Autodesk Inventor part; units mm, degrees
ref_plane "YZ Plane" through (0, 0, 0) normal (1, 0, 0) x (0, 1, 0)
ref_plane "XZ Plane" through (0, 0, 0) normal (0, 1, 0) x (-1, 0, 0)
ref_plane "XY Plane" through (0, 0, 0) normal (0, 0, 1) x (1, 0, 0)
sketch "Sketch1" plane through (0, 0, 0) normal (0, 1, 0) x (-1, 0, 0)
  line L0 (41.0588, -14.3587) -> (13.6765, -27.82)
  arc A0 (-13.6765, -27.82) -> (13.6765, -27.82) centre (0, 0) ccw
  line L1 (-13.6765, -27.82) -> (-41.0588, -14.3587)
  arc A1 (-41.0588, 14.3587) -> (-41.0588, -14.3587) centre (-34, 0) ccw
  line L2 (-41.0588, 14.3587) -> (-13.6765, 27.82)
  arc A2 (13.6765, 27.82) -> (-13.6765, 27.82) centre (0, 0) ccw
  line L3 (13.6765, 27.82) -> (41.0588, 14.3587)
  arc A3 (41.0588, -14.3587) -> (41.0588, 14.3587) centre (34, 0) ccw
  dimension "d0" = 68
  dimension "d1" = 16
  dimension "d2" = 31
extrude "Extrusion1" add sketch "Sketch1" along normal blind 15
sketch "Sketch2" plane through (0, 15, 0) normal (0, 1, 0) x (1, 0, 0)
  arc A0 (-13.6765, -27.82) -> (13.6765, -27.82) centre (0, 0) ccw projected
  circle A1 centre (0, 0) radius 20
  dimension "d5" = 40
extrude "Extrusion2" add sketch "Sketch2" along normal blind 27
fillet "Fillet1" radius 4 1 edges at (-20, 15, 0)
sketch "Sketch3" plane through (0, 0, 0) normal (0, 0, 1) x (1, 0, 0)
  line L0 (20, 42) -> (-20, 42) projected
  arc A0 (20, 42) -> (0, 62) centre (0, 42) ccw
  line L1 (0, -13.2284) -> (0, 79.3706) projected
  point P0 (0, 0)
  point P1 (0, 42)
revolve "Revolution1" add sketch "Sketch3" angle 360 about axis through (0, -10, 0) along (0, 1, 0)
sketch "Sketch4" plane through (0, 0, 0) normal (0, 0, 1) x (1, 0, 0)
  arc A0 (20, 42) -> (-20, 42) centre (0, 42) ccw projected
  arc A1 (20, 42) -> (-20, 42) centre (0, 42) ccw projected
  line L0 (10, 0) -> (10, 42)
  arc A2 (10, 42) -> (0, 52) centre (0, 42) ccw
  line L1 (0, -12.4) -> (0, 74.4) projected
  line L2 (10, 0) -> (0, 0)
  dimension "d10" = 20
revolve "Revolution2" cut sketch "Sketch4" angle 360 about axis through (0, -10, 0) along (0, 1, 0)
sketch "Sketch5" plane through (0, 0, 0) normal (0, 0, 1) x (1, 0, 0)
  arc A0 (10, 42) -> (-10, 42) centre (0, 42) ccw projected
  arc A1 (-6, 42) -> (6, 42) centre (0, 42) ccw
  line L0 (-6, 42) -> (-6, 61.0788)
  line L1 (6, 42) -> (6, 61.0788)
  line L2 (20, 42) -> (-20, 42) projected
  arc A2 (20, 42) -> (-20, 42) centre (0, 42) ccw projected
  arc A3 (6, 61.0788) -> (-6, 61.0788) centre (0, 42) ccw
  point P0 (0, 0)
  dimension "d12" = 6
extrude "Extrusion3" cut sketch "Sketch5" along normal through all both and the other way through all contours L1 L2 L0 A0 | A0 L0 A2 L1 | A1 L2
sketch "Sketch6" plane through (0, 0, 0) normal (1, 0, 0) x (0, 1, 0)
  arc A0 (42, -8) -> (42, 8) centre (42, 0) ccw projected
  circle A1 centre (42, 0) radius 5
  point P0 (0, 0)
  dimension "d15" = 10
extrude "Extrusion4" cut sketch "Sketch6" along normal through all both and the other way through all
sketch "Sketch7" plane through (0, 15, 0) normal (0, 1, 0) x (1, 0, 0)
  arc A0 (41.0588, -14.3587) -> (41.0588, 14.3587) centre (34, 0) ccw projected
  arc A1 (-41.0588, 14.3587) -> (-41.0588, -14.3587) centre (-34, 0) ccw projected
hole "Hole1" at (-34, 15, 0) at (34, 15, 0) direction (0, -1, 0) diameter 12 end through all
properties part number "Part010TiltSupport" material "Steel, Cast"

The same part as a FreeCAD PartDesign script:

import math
import FreeCAD as App
import Part
import Sketcher
from FreeCAD import Vector
Q = App.Units.Quantity


def edges_at(feature, points):
    """Names of the edges that pass closest to the given points."""
    edges = feature.Shape.Edges
    near = lambda p: min(range(len(edges)), key=lambda i: edges[i].distToShape(Part.Vertex(*p))[0])
    return sorted({f"Edge{near(p) + 1}" for p in points})

doc = App.newDocument("Part")
body = doc.addObject("PartDesign::Body", "Body")

sketch1 = body.newObject("Sketcher::SketchObject", "Sketch")
sketch1.AttachmentSupport = (doc.getObject("XZ_Plane"), [""])
sketch1.MapMode = "FlatFace"
sketch1.addGeometry([
    Part.LineSegment(Vector(-14, -28, 0), Vector(-41, -14, 0)),
    Part.ArcOfCircle(Part.Circle(Vector(-34, 0, 0), Vector(0, 0, 1), 16), math.radians(116), math.radians(244)),
    Part.LineSegment(Vector(-41, 14, 0), Vector(-14, 28, 0)),
    Part.ArcOfCircle(Part.Circle(Vector(0, 0, 0), Vector(0, 0, 1), 31), math.radians(64), math.radians(116)),
    Part.LineSegment(Vector(14, 28, 0), Vector(41, 14, 0)),
    Part.ArcOfCircle(Part.Circle(Vector(34, 0, 0), Vector(0, 0, 1), 16), math.radians(-64), math.radians(64)),
    Part.LineSegment(Vector(41, -14, 0), Vector(14, -28, 0)),
    Part.ArcOfCircle(Part.Circle(Vector(0, 0, 0), Vector(0, 0, 1), 31), math.radians(-116), math.radians(-64)),
], False)
sketch1.addConstraint([
    Sketcher.Constraint("Tangent", 0, 2, 1, 2),
    Sketcher.Constraint("Tangent", 1, 1, 2, 1),
    Sketcher.Constraint("Tangent", 2, 2, 3, 2),
    Sketcher.Constraint("Tangent", 3, 1, 4, 1),
    Sketcher.Constraint("Tangent", 4, 2, 5, 2),
    Sketcher.Constraint("Tangent", 5, 1, 6, 1),
    Sketcher.Constraint("Tangent", 6, 2, 7, 2),
    Sketcher.Constraint("Tangent", 7, 1, 0, 1),
    Sketcher.Constraint("Coincident", 3, 3, -1, 1),
    Sketcher.Constraint("Coincident", 7, 3, -1, 1),
    Sketcher.Constraint("Equal", 1, 5),
    Sketcher.Constraint("Equal", 3, 7),
    Sketcher.Constraint("Symmetric", 1, 3, 5, 3, -1, 1),
    Sketcher.Constraint("PointOnObject", 1, 3, -1),
    Sketcher.Constraint("Radius", 1, Q("16 mm")),
    Sketcher.Constraint("Radius", 3, Q("31 mm")),
    Sketcher.Constraint("DistanceX", 1, 3, 5, 3, Q("68 mm")),
])
pad1 = body.newObject("PartDesign::Pad", "Pad")
pad1.Profile = sketch1
pad1.Length = 15
pad1.Reversed = True

sketch2 = body.newObject("Sketcher::SketchObject", "Sketch001")
sketch2.AttachmentSupport = (doc.getObject("XZ_Plane"), [""])
sketch2.MapMode = "FlatFace"
sketch2.AttachmentOffset = App.Placement(Vector(0, 0, -15), App.Rotation())
sketch2.addGeometry(Part.Circle(Vector(0, 0, 0), Vector(0, 0, 1), 20), False)
sketch2.addConstraint([
    Sketcher.Constraint("Coincident", 0, 3, -1, 1),
    Sketcher.Constraint("Diameter", 0, Q("40 mm")),
])
pad2 = body.newObject("PartDesign::Pad", "Pad001")
pad2.Profile = sketch2
pad2.Length = 27
pad2.Reversed = True
doc.recompute()

fillet = body.newObject("PartDesign::Fillet", "Fillet")
fillet.Base = (pad2, edges_at(pad2, [(-20, 15, 0)]))
fillet.Radius = 4

sketch3 = body.newObject("Sketcher::SketchObject", "Sketch002")
sketch3.AttachmentSupport = (doc.getObject("XY_Plane"), [""])
sketch3.MapMode = "FlatFace"
sketch3.addGeometry([
    Part.LineSegment(Vector(0, 42, 0), Vector(20, 42, 0)),
    Part.ArcOfCircle(Part.Circle(Vector(0, 42, 0), Vector(0, 0, 1), 20), math.radians(0), math.radians(90)),
    Part.LineSegment(Vector(0, 62, 0), Vector(0, 42, 0)),
], False)
sketch3.addConstraint([
    Sketcher.Constraint("Coincident", 0, 2, 1, 1),
    Sketcher.Constraint("Coincident", 1, 2, 2, 1),
    Sketcher.Constraint("Coincident", 2, 2, 0, 1),
    Sketcher.Constraint("Horizontal", 0),
    Sketcher.Constraint("Vertical", 2),
    Sketcher.Constraint("Coincident", 2, 2, 1, 3),
    Sketcher.Constraint("PointOnObject", 1, 3, -2),
    Sketcher.Constraint("Radius", 1, Q("20 mm")),
    Sketcher.Constraint("DistanceY", -1, 1, 1, 3, Q("42 mm")),
])
revolution = body.newObject("PartDesign::Revolution", "Revolution")
revolution.Profile = sketch3
revolution.ReferenceAxis = (sketch3, ["V_Axis"])
revolution.Angle = 360

sketch4 = body.newObject("Sketcher::SketchObject", "Sketch003")
sketch4.AttachmentSupport = (doc.getObject("XY_Plane"), [""])
sketch4.MapMode = "FlatFace"
sketch4.addGeometry([
    Part.LineSegment(Vector(0, 0, 0), Vector(10, 0, 0)),
    Part.LineSegment(Vector(10, 0, 0), Vector(10, 42, 0)),
    Part.ArcOfCircle(Part.Circle(Vector(0, 42, 0), Vector(0, 0, 1), 10), math.radians(0), math.radians(90)),
    Part.LineSegment(Vector(0, 52, 0), Vector(0, 0, 0)),
], False)
sketch4.addConstraint([
    Sketcher.Constraint("Coincident", 0, 2, 1, 1),
    Sketcher.Constraint("Tangent", 1, 2, 2, 1),
    Sketcher.Constraint("Coincident", 2, 2, 3, 1),
    Sketcher.Constraint("Coincident", 3, 2, 0, 1),
    Sketcher.Constraint("Horizontal", 0),
    Sketcher.Constraint("Vertical", 1),
    Sketcher.Constraint("Vertical", 3),
    Sketcher.Constraint("Coincident", 3, 2, -1, 1),
    Sketcher.Constraint("PointOnObject", 2, 3, -2),
    Sketcher.Constraint("Radius", 2, Q("10 mm")),
    Sketcher.Constraint("DistanceY", 1, 1, 1, 2, Q("42 mm")),
])
groove = body.newObject("PartDesign::Groove", "Groove")
groove.Profile = sketch4
groove.ReferenceAxis = (sketch4, ["V_Axis"])
groove.Angle = 360

sketch5 = body.newObject("Sketcher::SketchObject", "Sketch004")
sketch5.AttachmentSupport = (doc.getObject("XY_Plane"), [""])
sketch5.MapMode = "FlatFace"
sketch5.addGeometry([
    Part.LineSegment(Vector(6, 42, 0), Vector(6, 61, 0)),
    Part.ArcOfCircle(Part.Circle(Vector(0, 42, 0), Vector(0, 0, 1), 20), math.radians(73), math.radians(107)),
    Part.LineSegment(Vector(-6, 61, 0), Vector(-6, 42, 0)),
    Part.ArcOfCircle(Part.Circle(Vector(0, 42, 0), Vector(0, 0, 1), 6), math.radians(180), math.radians(360)),
], False)
sketch5.addConstraint([
    Sketcher.Constraint("Coincident", 0, 2, 1, 1),
    Sketcher.Constraint("Coincident", 1, 2, 2, 1),
    Sketcher.Constraint("Tangent", 2, 2, 3, 1),
    Sketcher.Constraint("Tangent", 3, 2, 0, 1),
    Sketcher.Constraint("Vertical", 0),
    Sketcher.Constraint("Vertical", 2),
    Sketcher.Constraint("Coincident", 3, 3, 1, 3),
    Sketcher.Constraint("PointOnObject", 1, 3, -2),
    Sketcher.Constraint("Radius", 3, Q("6 mm")),
    Sketcher.Constraint("Radius", 1, Q("20 mm")),
    Sketcher.Constraint("DistanceY", -1, 1, 1, 3, Q("42 mm")),
])
pocket1 = body.newObject("PartDesign::Pocket", "Pocket")
pocket1.Profile = sketch5
pocket1.Type = "ThroughAll"
pocket1.Midplane = True

sketch6 = body.newObject("Sketcher::SketchObject", "Sketch005")
sketch6.AttachmentSupport = (doc.getObject("YZ_Plane"), [""])
sketch6.MapMode = "FlatFace"
sketch6.addGeometry(Part.Circle(Vector(42, 0, 0), Vector(0, 0, 1), 5), False)
sketch6.addConstraint([
    Sketcher.Constraint("PointOnObject", 0, 3, -1),
    Sketcher.Constraint("Diameter", 0, Q("10 mm")),
    Sketcher.Constraint("DistanceX", -1, 1, 0, 3, Q("42 mm")),
])
pocket2 = body.newObject("PartDesign::Pocket", "Pocket001")
pocket2.Profile = sketch6
pocket2.Type = "ThroughAll"
pocket2.Midplane = True

sketch7 = body.newObject("Sketcher::SketchObject", "Sketch006")
sketch7.AttachmentSupport = (doc.getObject("XZ_Plane"), [""])
sketch7.MapMode = "FlatFace"
sketch7.AttachmentOffset = App.Placement(Vector(0, 0, -15), App.Rotation())
sketch7.addGeometry([
    Part.Circle(Vector(-34, 0, 0), Vector(0, 0, 1), 6),
    Part.Circle(Vector(34, 0, 0), Vector(0, 0, 1), 6),
], False)
sketch7.addConstraint([
    Sketcher.Constraint("Equal", 0, 1),
    Sketcher.Constraint("Symmetric", 0, 3, 1, 3, -1, 1),
    Sketcher.Constraint("PointOnObject", 0, 3, -1),
    Sketcher.Constraint("Diameter", 0, Q("12 mm")),
    Sketcher.Constraint("DistanceX", 0, 3, -1, 1, Q("34 mm")),
])
doc.recompute()
hole = body.newObject("PartDesign::Hole", "Hole")
hole.Profile = sketch7
hole.ThreadType = "None"
hole.Diameter = 12
hole.DepthType = "ThroughAll"
hole.Reversed = True

doc.recompute()
